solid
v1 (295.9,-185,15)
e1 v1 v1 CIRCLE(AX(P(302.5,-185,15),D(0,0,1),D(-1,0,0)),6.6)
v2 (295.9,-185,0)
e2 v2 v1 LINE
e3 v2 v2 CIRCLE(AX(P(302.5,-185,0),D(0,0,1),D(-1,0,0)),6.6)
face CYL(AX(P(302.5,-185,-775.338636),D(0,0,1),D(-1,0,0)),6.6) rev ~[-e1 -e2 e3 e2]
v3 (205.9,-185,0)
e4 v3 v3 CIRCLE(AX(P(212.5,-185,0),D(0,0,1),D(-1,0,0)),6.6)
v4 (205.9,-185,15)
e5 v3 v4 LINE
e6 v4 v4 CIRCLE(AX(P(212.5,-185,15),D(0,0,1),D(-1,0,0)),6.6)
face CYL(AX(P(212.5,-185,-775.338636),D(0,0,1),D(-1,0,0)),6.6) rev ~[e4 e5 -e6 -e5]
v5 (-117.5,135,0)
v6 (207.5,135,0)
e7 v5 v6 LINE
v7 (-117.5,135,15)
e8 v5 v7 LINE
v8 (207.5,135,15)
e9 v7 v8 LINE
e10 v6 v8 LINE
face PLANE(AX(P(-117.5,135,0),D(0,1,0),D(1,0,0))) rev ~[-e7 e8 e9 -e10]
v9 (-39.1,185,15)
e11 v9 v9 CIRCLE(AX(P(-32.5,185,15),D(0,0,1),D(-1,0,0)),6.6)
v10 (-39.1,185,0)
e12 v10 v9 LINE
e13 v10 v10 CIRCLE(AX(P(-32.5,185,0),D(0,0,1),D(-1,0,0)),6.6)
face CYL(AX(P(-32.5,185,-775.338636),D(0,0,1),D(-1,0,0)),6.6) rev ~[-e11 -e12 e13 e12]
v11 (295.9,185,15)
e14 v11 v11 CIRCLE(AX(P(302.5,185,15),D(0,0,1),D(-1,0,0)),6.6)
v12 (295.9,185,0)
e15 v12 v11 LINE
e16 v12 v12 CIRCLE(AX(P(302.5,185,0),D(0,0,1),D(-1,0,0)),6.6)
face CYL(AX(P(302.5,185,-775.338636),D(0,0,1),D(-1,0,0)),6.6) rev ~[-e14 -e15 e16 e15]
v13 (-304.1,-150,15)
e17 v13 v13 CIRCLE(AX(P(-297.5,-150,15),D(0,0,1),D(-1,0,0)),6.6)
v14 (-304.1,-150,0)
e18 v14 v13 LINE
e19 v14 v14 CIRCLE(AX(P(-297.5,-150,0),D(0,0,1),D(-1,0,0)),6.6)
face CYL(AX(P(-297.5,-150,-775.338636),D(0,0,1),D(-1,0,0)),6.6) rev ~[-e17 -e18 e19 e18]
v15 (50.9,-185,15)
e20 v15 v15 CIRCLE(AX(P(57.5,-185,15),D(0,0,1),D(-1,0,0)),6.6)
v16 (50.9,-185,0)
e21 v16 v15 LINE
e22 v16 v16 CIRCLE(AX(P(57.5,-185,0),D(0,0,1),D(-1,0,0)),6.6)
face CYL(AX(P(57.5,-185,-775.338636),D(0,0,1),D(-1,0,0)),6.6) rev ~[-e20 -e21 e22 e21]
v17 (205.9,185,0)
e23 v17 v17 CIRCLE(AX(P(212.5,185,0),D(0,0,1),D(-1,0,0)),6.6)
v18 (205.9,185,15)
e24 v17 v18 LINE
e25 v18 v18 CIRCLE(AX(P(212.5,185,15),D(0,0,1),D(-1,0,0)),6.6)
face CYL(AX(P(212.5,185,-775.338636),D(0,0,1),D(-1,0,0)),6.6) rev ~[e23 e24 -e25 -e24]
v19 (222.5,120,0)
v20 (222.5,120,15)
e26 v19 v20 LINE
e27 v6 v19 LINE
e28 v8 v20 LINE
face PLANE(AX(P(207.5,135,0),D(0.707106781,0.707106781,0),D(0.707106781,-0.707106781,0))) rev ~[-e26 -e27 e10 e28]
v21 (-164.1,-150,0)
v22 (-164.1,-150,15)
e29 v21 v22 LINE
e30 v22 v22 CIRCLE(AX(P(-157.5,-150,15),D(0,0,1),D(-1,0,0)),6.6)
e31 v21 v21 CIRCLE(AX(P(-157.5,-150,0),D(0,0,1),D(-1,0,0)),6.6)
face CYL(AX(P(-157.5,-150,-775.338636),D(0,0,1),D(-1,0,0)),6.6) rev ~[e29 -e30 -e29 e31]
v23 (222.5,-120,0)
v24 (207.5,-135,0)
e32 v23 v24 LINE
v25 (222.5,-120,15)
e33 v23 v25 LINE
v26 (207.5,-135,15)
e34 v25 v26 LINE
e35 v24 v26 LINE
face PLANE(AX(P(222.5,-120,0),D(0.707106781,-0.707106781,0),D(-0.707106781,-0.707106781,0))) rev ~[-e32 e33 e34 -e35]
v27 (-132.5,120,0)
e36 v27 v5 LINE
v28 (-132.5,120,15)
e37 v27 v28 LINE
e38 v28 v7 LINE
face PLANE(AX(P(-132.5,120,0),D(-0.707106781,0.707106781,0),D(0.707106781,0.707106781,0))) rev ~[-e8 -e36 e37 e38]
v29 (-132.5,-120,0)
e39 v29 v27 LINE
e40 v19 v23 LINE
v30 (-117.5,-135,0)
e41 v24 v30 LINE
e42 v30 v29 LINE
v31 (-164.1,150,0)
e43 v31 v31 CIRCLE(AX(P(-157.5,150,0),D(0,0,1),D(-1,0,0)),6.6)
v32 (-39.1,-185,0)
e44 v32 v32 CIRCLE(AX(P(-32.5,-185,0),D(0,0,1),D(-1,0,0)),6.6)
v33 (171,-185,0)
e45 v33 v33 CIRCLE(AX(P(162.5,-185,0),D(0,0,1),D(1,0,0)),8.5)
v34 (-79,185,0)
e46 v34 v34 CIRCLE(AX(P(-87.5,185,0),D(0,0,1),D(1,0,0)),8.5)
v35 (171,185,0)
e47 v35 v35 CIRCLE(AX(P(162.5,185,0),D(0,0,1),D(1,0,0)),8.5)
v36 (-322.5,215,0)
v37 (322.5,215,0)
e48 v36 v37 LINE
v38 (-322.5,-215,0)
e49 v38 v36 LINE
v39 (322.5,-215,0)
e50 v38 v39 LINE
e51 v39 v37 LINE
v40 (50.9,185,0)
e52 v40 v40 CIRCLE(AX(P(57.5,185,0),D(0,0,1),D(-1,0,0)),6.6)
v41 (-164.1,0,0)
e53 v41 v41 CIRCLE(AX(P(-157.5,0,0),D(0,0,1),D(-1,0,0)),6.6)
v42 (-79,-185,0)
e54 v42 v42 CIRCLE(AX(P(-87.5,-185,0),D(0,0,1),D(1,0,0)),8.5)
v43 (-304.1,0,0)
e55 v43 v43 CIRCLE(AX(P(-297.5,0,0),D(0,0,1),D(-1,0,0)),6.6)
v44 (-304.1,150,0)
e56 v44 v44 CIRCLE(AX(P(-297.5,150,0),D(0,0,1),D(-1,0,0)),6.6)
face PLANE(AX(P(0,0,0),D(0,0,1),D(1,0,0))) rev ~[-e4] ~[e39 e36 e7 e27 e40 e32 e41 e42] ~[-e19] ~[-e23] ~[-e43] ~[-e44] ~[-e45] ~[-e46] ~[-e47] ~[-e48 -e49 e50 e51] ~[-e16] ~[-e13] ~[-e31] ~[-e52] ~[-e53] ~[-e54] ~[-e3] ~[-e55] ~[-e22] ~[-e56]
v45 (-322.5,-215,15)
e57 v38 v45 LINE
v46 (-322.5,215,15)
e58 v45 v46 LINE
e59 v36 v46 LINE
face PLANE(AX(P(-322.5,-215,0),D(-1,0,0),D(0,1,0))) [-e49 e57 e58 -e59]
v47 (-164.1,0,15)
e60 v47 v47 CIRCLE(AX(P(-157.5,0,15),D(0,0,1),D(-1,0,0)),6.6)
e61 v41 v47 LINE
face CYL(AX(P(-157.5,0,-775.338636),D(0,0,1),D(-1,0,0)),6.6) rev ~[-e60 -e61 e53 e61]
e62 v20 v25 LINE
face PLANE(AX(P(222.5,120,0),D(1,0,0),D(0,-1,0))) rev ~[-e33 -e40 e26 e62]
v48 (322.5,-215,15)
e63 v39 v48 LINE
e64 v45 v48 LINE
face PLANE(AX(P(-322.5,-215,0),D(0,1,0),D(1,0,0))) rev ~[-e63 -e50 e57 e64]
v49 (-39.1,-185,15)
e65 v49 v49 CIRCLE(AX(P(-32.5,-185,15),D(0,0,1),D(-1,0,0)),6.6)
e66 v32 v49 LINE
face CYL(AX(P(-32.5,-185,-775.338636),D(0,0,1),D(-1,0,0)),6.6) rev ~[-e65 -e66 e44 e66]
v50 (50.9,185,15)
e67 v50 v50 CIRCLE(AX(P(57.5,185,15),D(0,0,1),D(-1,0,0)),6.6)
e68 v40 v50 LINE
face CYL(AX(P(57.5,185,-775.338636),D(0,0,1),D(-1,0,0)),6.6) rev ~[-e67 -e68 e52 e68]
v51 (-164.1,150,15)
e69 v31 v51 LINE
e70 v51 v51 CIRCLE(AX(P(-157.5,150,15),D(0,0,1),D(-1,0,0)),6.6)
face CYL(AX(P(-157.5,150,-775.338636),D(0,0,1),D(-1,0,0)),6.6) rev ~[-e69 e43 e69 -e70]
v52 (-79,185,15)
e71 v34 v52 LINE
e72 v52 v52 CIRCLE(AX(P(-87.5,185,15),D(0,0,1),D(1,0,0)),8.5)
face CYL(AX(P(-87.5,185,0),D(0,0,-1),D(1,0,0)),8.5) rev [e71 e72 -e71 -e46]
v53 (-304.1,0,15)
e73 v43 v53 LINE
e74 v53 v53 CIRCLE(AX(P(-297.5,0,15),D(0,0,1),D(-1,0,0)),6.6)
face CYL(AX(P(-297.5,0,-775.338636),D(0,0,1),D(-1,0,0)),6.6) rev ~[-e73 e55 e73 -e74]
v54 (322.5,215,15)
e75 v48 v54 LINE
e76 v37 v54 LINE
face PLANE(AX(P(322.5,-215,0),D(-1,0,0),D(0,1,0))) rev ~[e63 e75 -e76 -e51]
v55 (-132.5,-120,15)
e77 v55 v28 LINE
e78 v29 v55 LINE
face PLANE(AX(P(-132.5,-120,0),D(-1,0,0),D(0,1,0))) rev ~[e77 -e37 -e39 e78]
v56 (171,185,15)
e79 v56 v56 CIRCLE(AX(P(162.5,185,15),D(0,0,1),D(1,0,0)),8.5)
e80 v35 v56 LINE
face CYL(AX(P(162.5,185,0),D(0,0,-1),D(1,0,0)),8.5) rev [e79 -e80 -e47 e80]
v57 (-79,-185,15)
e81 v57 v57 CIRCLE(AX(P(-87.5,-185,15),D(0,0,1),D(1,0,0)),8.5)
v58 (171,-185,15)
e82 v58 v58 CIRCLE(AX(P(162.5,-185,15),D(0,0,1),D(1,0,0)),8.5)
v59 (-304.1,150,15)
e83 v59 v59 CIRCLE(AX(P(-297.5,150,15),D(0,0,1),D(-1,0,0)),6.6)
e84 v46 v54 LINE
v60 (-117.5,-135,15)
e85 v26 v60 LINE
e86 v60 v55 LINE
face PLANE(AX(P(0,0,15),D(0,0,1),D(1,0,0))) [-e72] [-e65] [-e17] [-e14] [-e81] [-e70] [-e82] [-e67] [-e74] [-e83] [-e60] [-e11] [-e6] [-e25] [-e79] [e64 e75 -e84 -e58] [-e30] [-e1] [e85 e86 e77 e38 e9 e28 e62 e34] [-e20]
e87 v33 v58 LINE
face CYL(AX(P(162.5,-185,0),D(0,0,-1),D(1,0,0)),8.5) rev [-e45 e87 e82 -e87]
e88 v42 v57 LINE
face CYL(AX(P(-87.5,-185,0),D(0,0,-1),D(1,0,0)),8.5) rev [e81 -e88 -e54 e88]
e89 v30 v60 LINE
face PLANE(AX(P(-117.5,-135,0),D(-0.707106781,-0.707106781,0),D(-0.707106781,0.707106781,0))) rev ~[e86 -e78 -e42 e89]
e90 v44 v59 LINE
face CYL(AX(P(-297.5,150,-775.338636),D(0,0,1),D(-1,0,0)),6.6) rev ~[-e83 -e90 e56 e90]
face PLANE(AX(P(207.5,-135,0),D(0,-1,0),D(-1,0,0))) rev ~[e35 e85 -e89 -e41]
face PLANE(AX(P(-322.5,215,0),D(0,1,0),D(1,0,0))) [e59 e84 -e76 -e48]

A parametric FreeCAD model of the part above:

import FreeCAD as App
import Part
import Sketcher
Q = App.Units.Quantity


def add_polygon(sketch, points):
    """Adds a closed chain of lines whose ends are joined by coincident constraints."""
    first, n = sketch.GeometryCount, len(points)
    for a, b in zip(points, points[1:] + points[:1]):
        sketch.addGeometry(Part.LineSegment(App.Vector(*a, 0), App.Vector(*b, 0)), False)
    for i in range(n):
        sketch.addConstraint(Sketcher.Constraint("Coincident", first + i, 2, first + (i + 1) % n, 1))

doc = App.newDocument("Part")
body = doc.addObject("PartDesign::Body", "Body")

sketch1 = body.newObject("Sketcher::SketchObject", "Sketch")
sketch1.AttachmentSupport = (doc.getObject("XY_Plane"), [""])
sketch1.MapMode = "FlatFace"
add_polygon(sketch1, [(-322, 215), (-322, -215), (322, -215), (322, 215)])
add_polygon(sketch1, [(-132, -120), (-132, 120), (-118, 135), (208, 135), (222, 120), (222, -120), (208, -135), (-118, -135)])
sketch1.addConstraint([
    Sketcher.Constraint("Vertical", 0),
    Sketcher.Constraint("Horizontal", 1),
    Sketcher.Constraint("Vertical", 2),
    Sketcher.Constraint("Horizontal", 3),
    Sketcher.Constraint("Vertical", 4),
    Sketcher.Constraint("Horizontal", 6),
    Sketcher.Constraint("Vertical", 8),
    Sketcher.Constraint("Horizontal", 10),
    Sketcher.Constraint("Symmetric", 0, 2, 2, 2, -1, 1),
    Sketcher.Constraint("Symmetric", 6, 2, 9, 2, -1),
    Sketcher.Constraint("Perpendicular", 5, 7),
    Sketcher.Constraint("Perpendicular", 7, 9),
    Sketcher.Constraint("Perpendicular", 9, 11),
    Sketcher.Constraint("Horizontal", 4, 2, 7, 2),
    Sketcher.Constraint("Horizontal", 8, 2, 11, 2),
    Sketcher.Constraint("Vertical", 5, 2, 10, 2),
    Sketcher.Constraint("DistanceX", 1, 1, 1, 2, Q("645 mm")),
    Sketcher.Constraint("DistanceX", 6, 1, 6, 2, Q("325 mm")),
    Sketcher.Constraint("DistanceY", 0, 2, 0, 1, Q("430 mm")),
    Sketcher.Constraint("DistanceY", 4, 1, 4, 2, Q("240 mm")),
    Sketcher.Constraint("DistanceY", -1, 1, 5, 2, Q("135 mm")),
    Sketcher.Constraint("DistanceX", 3, 2, 4, 2, Q("190 mm")),
])
pad1 = body.newObject("PartDesign::Pad", "Pad")
pad1.Profile = sketch1
pad1.Length = 15

sketch2 = body.newObject("Sketcher::SketchObject", "Sketch001")
sketch2.AttachmentSupport = (doc.getObject("XY_Plane"), [""])
sketch2.MapMode = "FlatFace"
sketch2.addGeometry([
    Part.Circle(App.Vector(-298, 150, 0), App.Vector(0, 0, 1), 7),
    Part.Circle(App.Vector(-298, 0, 0), App.Vector(0, 0, 1), 7),
    Part.Circle(App.Vector(-298, -150, 0), App.Vector(0, 0, 1), 7),
    Part.Circle(App.Vector(-158, 150, 0), App.Vector(0, 0, 1), 7),
    Part.Circle(App.Vector(-158, 0, 0), App.Vector(0, 0, 1), 7),
    Part.Circle(App.Vector(-158, -150, 0), App.Vector(0, 0, 1), 7),
    Part.Circle(App.Vector(-32, -185, 0), App.Vector(0, 0, 1), 7),
    Part.Circle(App.Vector(58, -185, 0), App.Vector(0, 0, 1), 7),
    Part.Circle(App.Vector(212, -185, 0), App.Vector(0, 0, 1), 7),
    Part.Circle(App.Vector(302, -185, 0), App.Vector(0, 0, 1), 7),
    Part.Circle(App.Vector(302, 185, 0), App.Vector(0, 0, 1), 7),
    Part.Circle(App.Vector(212, 185, 0), App.Vector(0, 0, 1), 7),
    Part.Circle(App.Vector(58, 185, 0), App.Vector(0, 0, 1), 7),
    Part.Circle(App.Vector(-32, 185, 0), App.Vector(0, 0, 1), 7),
], False)
sketch2.addConstraint([
    Sketcher.Constraint("Equal", 0, 1),
    Sketcher.Constraint("Equal", 1, 2),
    Sketcher.Constraint("Equal", 2, 3),
    Sketcher.Constraint("Equal", 3, 4),
    Sketcher.Constraint("Equal", 4, 5),
    Sketcher.Constraint("Equal", 5, 6),
    Sketcher.Constraint("Equal", 6, 7),
    Sketcher.Constraint("Equal", 7, 8),
    Sketcher.Constraint("Equal", 8, 9),
    Sketcher.Constraint("Equal", 9, 10),
    Sketcher.Constraint("Equal", 10, 11),
    Sketcher.Constraint("Equal", 11, 12),
    Sketcher.Constraint("Equal", 12, 13),
    Sketcher.Constraint("Symmetric", 0, 3, 2, 3, -1),
    Sketcher.Constraint("Symmetric", 3, 3, 5, 3, -1),
    Sketcher.Constraint("Symmetric", 9, 3, 10, 3, -1),
    Sketcher.Constraint("Symmetric", 8, 3, 11, 3, -1),
    Sketcher.Constraint("Symmetric", 7, 3, 12, 3, -1),
    Sketcher.Constraint("Symmetric", 6, 3, 13, 3, -1),
    Sketcher.Constraint("PointOnObject", 1, 3, -1),
    Sketcher.Constraint("PointOnObject", 4, 3, -1),
    Sketcher.Constraint("Horizontal", 0, 3, 3, 3),
    Sketcher.Constraint("Horizontal", 6, 3, 7, 3),
    Sketcher.Constraint("Horizontal", 7, 3, 8, 3),
    Sketcher.Constraint("Horizontal", 8, 3, 9, 3),
    Sketcher.Constraint("Vertical", 0, 3, 1, 3),
    Sketcher.Constraint("Vertical", 3, 3, 4, 3),
    Sketcher.Constraint("Diameter", 0, Q("13.2 mm")),
    Sketcher.Constraint("DistanceY", -1, 1, 0, 3, Q("150 mm")),
    Sketcher.Constraint("DistanceY", 6, 3, -1, 1, Q("185 mm")),
    Sketcher.Constraint("DistanceX", 0, 3, 3, 3, Q("140 mm")),
    Sketcher.Constraint("DistanceX", 5, 3, 6, 3, Q("125 mm")),
    Sketcher.Constraint("DistanceX", 6, 3, 7, 3, Q("90 mm")),
    Sketcher.Constraint("DistanceX", 7, 3, 8, 3, Q("155 mm")),
    Sketcher.Constraint("DistanceX", 8, 3, 9, 3, Q("90 mm")),
    Sketcher.Constraint("DistanceX", 0, 3, -1, 1, Q("297.5 mm")),
])
doc.recompute()
hole = body.newObject("PartDesign::Hole", "Hole")
hole.Profile = sketch2
hole.ThreadType = "None"
hole.Diameter = 13.2
hole.DepthType = "ThroughAll"
hole.Reversed = True

sketch3 = body.newObject("Sketcher::SketchObject", "Sketch002")
sketch3.AttachmentSupport = (doc.getObject("XY_Plane"), [""])
sketch3.MapMode = "FlatFace"
sketch3.addGeometry([
    Part.Circle(App.Vector(-88, 185, 0), App.Vector(0, 0, 1), 8),
    Part.Circle(App.Vector(162, 185, 0), App.Vector(0, 0, 1), 8),
    Part.Circle(App.Vector(162, -185, 0), App.Vector(0, 0, 1), 8),
    Part.Circle(App.Vector(-88, -185, 0), App.Vector(0, 0, 1), 8),
], False)
sketch3.addConstraint([
    Sketcher.Constraint("Equal", 0, 1),
    Sketcher.Constraint("Equal", 1, 2),
    Sketcher.Constraint("Equal", 2, 3),
    Sketcher.Constraint("Symmetric", 1, 3, 2, 3, -1),
    Sketcher.Constraint("Symmetric", 0, 3, 3, 3, -1),
    Sketcher.Constraint("Horizontal", 0, 3, 1, 3),
    Sketcher.Constraint("Diameter", 0, Q("17 mm")),
    Sketcher.Constraint("DistanceY", -1, 1, 0, 3, Q("185 mm")),
    Sketcher.Constraint("DistanceX", 0, 3, 1, 3, Q("250 mm")),
    Sketcher.Constraint("DistanceX", 0, 3, -1, 1, Q("87.5 mm")),
])
pocket1 = body.newObject("PartDesign::Pocket", "Pocket")
pocket1.Profile = sketch3
pocket1.Type = "ThroughAll"
pocket1.Reversed = True

doc.recompute()
